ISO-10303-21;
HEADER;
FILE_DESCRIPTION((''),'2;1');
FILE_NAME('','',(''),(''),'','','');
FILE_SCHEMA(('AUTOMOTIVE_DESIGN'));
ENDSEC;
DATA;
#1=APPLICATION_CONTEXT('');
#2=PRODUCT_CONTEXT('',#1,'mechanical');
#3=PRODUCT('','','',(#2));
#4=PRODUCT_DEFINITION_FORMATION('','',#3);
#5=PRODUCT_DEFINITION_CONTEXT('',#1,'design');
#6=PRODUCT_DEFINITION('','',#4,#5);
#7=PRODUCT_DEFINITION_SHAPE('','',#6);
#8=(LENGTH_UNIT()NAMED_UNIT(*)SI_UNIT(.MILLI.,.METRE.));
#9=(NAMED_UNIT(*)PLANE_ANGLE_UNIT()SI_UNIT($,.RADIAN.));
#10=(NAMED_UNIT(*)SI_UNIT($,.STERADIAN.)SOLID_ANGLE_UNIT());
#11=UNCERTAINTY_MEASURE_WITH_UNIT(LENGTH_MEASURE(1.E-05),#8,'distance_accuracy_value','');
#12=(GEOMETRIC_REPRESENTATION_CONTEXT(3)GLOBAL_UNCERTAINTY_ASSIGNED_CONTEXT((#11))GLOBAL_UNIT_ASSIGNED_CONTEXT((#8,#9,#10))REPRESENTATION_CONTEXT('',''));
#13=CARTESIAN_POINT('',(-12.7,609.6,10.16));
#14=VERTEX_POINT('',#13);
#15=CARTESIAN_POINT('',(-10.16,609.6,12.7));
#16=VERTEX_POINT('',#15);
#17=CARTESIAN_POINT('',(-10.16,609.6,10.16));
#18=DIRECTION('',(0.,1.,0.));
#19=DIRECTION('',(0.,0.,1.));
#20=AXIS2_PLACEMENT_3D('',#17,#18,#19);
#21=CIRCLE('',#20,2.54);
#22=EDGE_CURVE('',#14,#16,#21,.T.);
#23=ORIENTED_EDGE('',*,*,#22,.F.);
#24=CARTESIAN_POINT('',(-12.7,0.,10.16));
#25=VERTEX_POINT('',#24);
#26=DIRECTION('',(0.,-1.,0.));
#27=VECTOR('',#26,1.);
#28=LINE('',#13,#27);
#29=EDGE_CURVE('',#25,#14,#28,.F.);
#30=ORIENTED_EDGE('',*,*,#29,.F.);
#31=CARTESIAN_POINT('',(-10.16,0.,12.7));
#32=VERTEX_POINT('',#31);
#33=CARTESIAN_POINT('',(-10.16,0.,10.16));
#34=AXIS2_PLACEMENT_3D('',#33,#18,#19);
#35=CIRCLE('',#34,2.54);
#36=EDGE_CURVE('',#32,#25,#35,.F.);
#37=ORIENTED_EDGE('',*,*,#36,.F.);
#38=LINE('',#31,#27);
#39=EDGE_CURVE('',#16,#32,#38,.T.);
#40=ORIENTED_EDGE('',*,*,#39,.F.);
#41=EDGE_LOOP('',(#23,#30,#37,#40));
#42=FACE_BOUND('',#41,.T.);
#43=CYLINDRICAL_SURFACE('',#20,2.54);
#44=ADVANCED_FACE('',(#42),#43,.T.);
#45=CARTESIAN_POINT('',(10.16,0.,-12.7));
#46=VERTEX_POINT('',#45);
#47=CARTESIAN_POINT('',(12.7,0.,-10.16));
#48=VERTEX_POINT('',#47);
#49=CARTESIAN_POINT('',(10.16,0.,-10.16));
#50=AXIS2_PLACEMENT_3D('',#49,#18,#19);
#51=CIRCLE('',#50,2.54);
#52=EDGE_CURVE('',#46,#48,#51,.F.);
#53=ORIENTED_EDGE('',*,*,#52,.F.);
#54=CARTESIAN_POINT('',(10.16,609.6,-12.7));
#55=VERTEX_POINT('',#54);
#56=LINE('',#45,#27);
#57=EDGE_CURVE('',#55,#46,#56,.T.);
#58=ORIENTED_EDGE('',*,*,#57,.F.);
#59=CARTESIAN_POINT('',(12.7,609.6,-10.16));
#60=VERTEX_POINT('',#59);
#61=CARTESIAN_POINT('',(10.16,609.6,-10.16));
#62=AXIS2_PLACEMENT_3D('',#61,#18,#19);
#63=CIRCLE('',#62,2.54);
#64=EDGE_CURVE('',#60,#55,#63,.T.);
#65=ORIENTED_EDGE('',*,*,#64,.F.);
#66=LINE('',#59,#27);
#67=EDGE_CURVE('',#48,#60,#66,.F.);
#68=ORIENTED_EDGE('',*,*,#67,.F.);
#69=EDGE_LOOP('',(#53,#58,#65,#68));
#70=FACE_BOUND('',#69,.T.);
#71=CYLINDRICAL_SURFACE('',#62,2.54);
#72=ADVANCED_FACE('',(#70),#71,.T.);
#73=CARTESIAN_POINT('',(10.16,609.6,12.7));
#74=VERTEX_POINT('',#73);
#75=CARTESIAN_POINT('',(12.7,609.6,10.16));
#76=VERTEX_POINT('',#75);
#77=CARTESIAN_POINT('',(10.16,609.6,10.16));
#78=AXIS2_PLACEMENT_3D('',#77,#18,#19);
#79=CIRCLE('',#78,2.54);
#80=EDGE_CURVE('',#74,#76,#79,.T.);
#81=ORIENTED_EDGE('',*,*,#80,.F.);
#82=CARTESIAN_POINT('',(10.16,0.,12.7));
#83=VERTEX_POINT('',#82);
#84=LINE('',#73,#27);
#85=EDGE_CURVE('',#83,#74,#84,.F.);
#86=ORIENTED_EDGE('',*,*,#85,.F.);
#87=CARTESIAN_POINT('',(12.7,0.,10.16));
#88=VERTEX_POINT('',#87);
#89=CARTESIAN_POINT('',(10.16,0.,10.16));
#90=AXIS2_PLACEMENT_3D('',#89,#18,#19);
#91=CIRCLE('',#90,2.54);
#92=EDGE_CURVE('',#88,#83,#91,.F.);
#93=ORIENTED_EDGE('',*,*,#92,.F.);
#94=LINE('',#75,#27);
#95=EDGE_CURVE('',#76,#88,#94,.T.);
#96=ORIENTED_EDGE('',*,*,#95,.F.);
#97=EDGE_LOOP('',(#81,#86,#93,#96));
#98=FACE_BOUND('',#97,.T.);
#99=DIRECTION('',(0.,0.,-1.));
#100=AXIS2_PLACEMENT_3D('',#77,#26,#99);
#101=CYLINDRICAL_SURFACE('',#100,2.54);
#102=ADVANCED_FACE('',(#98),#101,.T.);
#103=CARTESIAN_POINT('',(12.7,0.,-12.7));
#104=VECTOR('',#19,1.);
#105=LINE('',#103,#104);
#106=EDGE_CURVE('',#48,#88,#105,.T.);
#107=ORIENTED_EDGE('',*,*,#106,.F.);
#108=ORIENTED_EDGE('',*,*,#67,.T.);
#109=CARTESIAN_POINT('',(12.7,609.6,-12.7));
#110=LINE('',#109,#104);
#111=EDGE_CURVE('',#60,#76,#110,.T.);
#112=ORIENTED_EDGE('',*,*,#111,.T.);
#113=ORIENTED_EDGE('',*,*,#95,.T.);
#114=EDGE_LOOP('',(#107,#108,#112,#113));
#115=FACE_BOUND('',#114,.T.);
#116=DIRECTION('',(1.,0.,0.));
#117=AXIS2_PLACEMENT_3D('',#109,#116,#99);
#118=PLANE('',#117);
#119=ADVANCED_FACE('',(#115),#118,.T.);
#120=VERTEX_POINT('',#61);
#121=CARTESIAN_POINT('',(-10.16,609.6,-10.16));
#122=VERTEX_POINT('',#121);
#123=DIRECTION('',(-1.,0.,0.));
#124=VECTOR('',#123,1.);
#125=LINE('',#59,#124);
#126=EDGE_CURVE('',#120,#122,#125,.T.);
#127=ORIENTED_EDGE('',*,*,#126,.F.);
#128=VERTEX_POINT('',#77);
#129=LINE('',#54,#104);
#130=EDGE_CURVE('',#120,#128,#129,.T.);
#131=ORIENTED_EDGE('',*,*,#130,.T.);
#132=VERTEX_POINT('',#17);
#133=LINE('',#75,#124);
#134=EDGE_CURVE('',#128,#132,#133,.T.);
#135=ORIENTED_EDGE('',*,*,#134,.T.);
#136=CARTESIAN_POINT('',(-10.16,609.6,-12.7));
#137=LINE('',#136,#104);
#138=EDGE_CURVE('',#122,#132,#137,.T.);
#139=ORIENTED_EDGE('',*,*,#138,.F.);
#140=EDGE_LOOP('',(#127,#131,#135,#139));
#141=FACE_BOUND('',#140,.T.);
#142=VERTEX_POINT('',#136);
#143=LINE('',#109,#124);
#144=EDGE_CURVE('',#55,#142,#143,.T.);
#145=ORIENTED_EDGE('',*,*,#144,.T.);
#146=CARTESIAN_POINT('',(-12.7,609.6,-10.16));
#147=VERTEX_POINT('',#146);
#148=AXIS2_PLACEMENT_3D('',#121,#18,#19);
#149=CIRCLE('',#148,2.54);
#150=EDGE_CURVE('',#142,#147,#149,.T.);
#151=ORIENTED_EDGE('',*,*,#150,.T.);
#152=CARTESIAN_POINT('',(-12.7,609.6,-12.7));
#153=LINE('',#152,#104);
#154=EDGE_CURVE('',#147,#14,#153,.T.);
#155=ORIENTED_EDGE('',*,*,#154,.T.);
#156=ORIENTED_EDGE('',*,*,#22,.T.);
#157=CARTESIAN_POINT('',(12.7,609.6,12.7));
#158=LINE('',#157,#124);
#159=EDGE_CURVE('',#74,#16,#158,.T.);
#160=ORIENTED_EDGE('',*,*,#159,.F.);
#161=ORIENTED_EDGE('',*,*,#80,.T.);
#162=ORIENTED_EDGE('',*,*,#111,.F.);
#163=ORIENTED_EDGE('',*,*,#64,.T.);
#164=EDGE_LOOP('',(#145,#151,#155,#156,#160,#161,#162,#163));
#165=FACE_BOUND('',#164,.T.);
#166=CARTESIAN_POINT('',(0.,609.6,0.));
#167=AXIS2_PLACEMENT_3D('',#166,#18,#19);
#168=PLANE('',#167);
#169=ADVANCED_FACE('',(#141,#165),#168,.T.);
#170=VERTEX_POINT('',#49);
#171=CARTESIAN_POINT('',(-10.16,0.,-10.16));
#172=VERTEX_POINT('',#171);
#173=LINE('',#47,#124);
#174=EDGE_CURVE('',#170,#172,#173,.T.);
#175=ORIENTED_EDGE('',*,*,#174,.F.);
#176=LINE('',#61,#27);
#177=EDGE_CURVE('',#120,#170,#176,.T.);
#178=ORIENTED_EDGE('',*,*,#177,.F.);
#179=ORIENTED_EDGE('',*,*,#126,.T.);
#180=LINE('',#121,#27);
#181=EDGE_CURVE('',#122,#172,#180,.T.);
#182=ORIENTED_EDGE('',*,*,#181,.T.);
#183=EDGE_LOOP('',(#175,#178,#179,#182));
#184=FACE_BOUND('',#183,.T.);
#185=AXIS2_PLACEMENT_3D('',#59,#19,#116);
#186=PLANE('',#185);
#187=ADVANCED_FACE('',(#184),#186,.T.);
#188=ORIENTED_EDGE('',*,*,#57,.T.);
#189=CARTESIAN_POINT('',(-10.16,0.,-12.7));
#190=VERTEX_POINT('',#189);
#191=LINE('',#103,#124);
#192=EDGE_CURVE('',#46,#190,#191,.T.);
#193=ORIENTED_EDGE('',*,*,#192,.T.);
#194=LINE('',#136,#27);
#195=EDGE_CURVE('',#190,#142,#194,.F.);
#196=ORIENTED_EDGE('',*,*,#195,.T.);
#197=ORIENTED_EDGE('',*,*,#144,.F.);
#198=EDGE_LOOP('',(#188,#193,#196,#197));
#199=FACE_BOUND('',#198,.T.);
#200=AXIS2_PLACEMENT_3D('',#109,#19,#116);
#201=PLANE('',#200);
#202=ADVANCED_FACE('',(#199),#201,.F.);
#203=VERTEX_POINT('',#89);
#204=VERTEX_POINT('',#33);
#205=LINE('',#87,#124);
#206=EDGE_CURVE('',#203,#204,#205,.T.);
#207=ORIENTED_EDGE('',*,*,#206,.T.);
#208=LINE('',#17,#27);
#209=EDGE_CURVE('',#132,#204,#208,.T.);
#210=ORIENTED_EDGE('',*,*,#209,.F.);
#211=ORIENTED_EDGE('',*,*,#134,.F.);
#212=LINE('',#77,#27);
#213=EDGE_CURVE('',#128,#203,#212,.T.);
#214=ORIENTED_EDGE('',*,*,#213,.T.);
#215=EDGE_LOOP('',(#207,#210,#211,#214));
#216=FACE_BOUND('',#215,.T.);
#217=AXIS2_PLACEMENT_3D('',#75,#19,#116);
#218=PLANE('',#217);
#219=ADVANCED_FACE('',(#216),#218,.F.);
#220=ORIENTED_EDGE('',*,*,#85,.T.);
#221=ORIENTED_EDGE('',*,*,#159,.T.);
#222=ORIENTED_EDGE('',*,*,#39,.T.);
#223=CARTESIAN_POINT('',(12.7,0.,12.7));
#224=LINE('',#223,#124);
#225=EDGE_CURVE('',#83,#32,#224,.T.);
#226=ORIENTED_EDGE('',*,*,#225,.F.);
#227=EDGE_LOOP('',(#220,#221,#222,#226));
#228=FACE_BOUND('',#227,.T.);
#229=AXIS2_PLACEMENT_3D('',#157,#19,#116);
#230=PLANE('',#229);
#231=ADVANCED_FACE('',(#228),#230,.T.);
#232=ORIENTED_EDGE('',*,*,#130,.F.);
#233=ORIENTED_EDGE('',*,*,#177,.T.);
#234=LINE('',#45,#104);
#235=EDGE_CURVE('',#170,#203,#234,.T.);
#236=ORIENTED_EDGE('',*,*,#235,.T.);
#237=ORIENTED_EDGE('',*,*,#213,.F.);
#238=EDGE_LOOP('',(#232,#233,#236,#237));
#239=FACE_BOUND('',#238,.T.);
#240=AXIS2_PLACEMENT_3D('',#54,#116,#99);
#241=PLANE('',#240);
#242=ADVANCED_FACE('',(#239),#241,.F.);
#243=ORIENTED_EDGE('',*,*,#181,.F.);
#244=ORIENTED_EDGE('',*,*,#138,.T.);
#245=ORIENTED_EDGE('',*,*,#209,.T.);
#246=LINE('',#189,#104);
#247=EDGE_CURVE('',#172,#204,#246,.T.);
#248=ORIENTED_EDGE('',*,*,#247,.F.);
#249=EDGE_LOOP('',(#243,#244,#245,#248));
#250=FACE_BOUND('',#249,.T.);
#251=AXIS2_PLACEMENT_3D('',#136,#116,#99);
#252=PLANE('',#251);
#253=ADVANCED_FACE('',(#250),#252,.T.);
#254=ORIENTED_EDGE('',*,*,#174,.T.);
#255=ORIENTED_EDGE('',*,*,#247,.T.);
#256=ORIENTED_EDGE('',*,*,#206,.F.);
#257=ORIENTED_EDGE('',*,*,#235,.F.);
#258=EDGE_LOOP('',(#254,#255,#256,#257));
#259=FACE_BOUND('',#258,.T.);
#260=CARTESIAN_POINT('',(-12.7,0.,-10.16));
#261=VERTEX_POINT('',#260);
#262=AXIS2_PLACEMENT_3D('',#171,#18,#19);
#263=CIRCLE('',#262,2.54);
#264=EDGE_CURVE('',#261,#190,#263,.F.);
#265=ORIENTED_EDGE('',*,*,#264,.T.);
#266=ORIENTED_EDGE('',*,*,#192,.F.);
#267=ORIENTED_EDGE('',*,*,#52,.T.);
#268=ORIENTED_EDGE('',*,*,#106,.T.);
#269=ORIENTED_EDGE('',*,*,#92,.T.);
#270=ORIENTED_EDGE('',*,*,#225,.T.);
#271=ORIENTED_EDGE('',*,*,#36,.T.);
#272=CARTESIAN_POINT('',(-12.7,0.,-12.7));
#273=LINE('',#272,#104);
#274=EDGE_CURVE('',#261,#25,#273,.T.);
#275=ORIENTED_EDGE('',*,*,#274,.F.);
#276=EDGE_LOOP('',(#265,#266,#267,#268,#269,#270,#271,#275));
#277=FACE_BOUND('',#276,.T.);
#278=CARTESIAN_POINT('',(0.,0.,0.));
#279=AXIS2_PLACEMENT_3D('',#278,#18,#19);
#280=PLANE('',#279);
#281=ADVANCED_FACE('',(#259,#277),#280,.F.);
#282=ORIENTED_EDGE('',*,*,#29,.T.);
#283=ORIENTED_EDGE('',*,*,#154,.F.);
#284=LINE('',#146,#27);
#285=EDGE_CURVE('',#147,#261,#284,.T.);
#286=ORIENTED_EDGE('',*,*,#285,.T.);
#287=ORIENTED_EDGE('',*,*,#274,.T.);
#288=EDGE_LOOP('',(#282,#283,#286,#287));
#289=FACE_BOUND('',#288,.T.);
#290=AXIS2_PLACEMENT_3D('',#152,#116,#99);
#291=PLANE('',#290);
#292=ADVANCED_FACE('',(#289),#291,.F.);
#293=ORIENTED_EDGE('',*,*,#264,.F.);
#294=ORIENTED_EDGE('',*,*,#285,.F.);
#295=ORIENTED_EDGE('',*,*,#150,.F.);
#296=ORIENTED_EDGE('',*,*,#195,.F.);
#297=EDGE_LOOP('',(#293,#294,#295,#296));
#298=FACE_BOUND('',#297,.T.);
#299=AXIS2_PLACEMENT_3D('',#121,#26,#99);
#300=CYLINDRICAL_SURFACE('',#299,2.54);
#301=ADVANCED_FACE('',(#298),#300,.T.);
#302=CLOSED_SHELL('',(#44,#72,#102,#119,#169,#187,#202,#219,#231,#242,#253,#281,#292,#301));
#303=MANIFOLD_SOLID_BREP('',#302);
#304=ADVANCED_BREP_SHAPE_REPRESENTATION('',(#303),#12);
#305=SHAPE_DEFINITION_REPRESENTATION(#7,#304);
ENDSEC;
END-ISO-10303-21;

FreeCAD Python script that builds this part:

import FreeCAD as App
import Part
import Sketcher

V = App.Vector
Q = App.Units.Quantity


def edges_at(feature, points):
    """Names of the edges that pass closest to the given points."""
    edges = feature.Shape.Edges
    near = lambda p: min(range(len(edges)), key=lambda i: edges[i].distToShape(Part.Vertex(*p))[0])
    return sorted({f"Edge{near(p) + 1}" for p in points})


def faces_at(feature, points):
    """Names of the faces that lie closest to the given points."""
    faces = feature.Shape.Faces
    near = lambda p: min(range(len(faces)), key=lambda i: faces[i].distToShape(Part.Vertex(*p))[0])
    return sorted({f"Face{near(p) + 1}" for p in points})

doc = App.newDocument("Part")
body = doc.addObject("PartDesign::Body", "Body")

# Sketch on XZ plane
sketch1 = body.newObject("Sketcher::SketchObject", "Sketch")
sketch1.AttachmentSupport = (doc.getObject("XZ_Plane"), [""])
sketch1.MapMode = "FlatFace"
sketch1.addGeometry(Part.LineSegment(V(-13, -13, 0), V(-13, 13, 0)), False)
sketch1.addGeometry(Part.LineSegment(V(-13, 13, 0), V(13, 13, 0)), False)
sketch1.addGeometry(Part.LineSegment(V(13, 13, 0), V(13, -13, 0)), False)
sketch1.addGeometry(Part.LineSegment(V(13, -13, 0), V(-13, -13, 0)), False)
sketch1.addConstraint(Sketcher.Constraint("Coincident", 0, 2, 1, 1))
sketch1.addConstraint(Sketcher.Constraint("Coincident", 1, 2, 2, 1))
sketch1.addConstraint(Sketcher.Constraint("Coincident", 2, 2, 3, 1))
sketch1.addConstraint(Sketcher.Constraint("Coincident", 3, 2, 0, 1))
sketch1.addConstraint(Sketcher.Constraint("Vertical", 0))
sketch1.addConstraint(Sketcher.Constraint("Horizontal", 1))
sketch1.addConstraint(Sketcher.Constraint("Vertical", 2))
sketch1.addConstraint(Sketcher.Constraint("Horizontal", 3))
sketch1.addConstraint(Sketcher.Constraint("Symmetric", 0, 2, 2, 2, -1, 1))
sketch1.addConstraint(Sketcher.Constraint("Equal", 3, 0))
sketch1.addConstraint(Sketcher.Constraint("DistanceX", 1, 1, 1, 2, Q("1 in")))
pad1 = body.newObject("PartDesign::Pad", "Pad")
pad1.Profile = sketch1
pad1.Length = Q("24 in")
pad1.Reversed = True
doc.recompute()

thickness = body.newObject("PartDesign::Thickness", "Thickness")
thickness.Base = (pad1, faces_at(pad1, [(0, 609.6, 0), (0, 0, 0)]))
thickness.Value = Q("0.1 in")
thickness.Reversed = True
thickness.Join = "Intersection"
doc.recompute()

fillet = body.newObject("PartDesign::Fillet", "Fillet")
fillet.Base = (thickness, edges_at(thickness, [
    (12.7, 304.8, -12.7),
    (12.7, 304.8, 12.7),
    (-12.7, 304.8, 12.7),
    (-12.7, 304.8, -12.7),
]))
fillet.Radius = Q("0.1 in")

doc.recompute()
